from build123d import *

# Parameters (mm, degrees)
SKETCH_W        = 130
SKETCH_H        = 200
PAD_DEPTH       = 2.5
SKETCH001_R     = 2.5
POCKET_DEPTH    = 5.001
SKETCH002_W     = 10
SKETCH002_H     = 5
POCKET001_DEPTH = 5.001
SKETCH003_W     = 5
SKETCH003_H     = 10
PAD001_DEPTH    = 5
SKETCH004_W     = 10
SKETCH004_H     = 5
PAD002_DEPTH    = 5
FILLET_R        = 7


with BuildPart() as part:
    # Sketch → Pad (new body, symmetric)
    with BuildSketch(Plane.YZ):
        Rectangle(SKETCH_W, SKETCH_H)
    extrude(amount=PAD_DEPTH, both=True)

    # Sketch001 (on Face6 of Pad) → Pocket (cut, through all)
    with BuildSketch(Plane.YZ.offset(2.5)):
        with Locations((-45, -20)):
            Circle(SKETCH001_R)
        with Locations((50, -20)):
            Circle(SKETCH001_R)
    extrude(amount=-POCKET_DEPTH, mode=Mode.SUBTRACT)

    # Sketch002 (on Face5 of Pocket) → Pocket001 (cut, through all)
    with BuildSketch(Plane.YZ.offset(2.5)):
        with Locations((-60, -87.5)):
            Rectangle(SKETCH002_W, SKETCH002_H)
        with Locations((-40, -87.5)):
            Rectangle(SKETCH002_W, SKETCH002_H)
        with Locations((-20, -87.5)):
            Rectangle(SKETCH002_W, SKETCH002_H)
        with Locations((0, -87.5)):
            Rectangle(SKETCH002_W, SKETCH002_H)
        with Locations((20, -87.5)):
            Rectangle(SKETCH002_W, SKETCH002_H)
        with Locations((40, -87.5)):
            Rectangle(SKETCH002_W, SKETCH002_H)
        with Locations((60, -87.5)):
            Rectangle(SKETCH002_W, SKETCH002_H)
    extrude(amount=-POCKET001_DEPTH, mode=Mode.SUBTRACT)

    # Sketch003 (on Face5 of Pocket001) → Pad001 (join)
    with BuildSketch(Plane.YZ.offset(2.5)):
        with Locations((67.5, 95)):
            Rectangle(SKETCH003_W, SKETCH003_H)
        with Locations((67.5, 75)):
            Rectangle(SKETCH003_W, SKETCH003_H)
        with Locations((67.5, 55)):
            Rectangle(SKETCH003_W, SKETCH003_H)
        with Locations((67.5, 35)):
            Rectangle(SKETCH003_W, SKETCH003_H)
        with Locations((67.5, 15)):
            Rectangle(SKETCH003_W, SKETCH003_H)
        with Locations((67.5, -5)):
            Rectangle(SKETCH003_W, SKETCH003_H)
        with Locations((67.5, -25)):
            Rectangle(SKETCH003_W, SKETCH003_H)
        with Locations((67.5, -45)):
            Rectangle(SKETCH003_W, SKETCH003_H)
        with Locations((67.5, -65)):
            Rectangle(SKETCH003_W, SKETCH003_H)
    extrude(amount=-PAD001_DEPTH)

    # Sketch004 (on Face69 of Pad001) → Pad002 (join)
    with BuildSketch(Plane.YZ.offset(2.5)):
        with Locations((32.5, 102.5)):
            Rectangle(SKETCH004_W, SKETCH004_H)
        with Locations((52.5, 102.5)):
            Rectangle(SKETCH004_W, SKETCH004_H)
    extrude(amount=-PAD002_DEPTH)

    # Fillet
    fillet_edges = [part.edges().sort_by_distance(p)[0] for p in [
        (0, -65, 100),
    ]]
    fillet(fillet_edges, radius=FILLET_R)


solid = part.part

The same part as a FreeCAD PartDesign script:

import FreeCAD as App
import Part
import Sketcher


def edges_at(feature, points):
    """Names of the edges that pass closest to the given points."""
    edges = feature.Shape.Edges
    near = lambda p: min(range(len(edges)), key=lambda i: edges[i].distToShape(Part.Vertex(*p))[0])
    return sorted({f"Edge{near(p) + 1}" for p in points})

doc = App.newDocument("Part")
body = doc.addObject("PartDesign::Body", "Body")

sketch1 = body.newObject("Sketcher::SketchObject", "Sketch")
sketch1.AttachmentSupport = (doc.getObject("YZ_Plane"), [""])
sketch1.MapMode = "FlatFace"
sketch1.addGeometry(Part.LineSegment(App.Vector(-65, 100, 0), App.Vector(-65, -100, 0)), False)
sketch1.addGeometry(Part.LineSegment(App.Vector(-65, -100, 0), App.Vector(65, -100, 0)), False)
sketch1.addGeometry(Part.LineSegment(App.Vector(65, -100, 0), App.Vector(65, 100, 0)), False)
sketch1.addGeometry(Part.LineSegment(App.Vector(65, 100, 0), App.Vector(-65, 100, 0)), False)
sketch1.addConstraint(Sketcher.Constraint("Coincident", 0, 2, 1, 1))
sketch1.addConstraint(Sketcher.Constraint("Coincident", 1, 2, 2, 1))
sketch1.addConstraint(Sketcher.Constraint("Coincident", 2, 2, 3, 1))
sketch1.addConstraint(Sketcher.Constraint("Coincident", 3, 2, 0, 1))
sketch1.addConstraint(Sketcher.Constraint("Vertical", 0))
sketch1.addConstraint(Sketcher.Constraint("Horizontal", 1))
sketch1.addConstraint(Sketcher.Constraint("Vertical", 2))
sketch1.addConstraint(Sketcher.Constraint("Horizontal", 3))
sketch1.addConstraint(Sketcher.Constraint("Symmetric", 0, 2, 2, 2, -1, 1))
sketch1.addConstraint(Sketcher.Constraint("DistanceX", 1, 1, 1, 2, 130.0))
sketch1.addConstraint(Sketcher.Constraint("DistanceY", 0, 2, 0, 1, 200.0))
pad1 = body.newObject("PartDesign::Pad", "Pad")
pad1.Profile = sketch1
pad1.Length = 5
pad1.Midplane = True

sketch2 = body.newObject("Sketcher::SketchObject", "Sketch001")
sketch2.AttachmentSupport = (doc.getObject("YZ_Plane"), [""])
sketch2.MapMode = "FlatFace"
sketch2.AttachmentOffset = App.Placement(App.Vector(0, 0, 2.5), App.Rotation())
sketch2.addGeometry(Part.Circle(App.Vector(-45, -20, 0), App.Vector(0, 0, 1), 2.5), False)
sketch2.addGeometry(Part.Circle(App.Vector(50, -20, 0), App.Vector(0, 0, 1), 2.5), False)
sketch2.addConstraint(Sketcher.Constraint("Equal", 0, 1))
sketch2.addConstraint(Sketcher.Constraint("Horizontal", 0, 3, 1, 3))
sketch2.addConstraint(Sketcher.Constraint("Diameter", 0, 5.0))
sketch2.addConstraint(Sketcher.Constraint("DistanceX", 0, 3, -1, 1, 45.0))
sketch2.addConstraint(Sketcher.Constraint("DistanceY", 0, 3, -1, 1, 20.0))
sketch2.addConstraint(Sketcher.Constraint("DistanceX", -1, 1, 1, 3, 50.0))
pocket1 = body.newObject("PartDesign::Pocket", "Pocket")
pocket1.Profile = sketch2
pocket1.Type = "ThroughAll"

sketch3 = body.newObject("Sketcher::SketchObject", "Sketch002")
sketch3.AttachmentSupport = (doc.getObject("YZ_Plane"), [""])
sketch3.MapMode = "FlatFace"
sketch3.AttachmentOffset = App.Placement(App.Vector(0, 0, 2.5), App.Rotation())
sketch3.addGeometry(Part.LineSegment(App.Vector(-65, -85, 0), App.Vector(-65, -90, 0)), False)
sketch3.addGeometry(Part.LineSegment(App.Vector(-65, -90, 0), App.Vector(-55, -90, 0)), False)
sketch3.addGeometry(Part.LineSegment(App.Vector(-55, -90, 0), App.Vector(-55, -85, 0)), False)
sketch3.addGeometry(Part.LineSegment(App.Vector(-55, -85, 0), App.Vector(-65, -85, 0)), False)
sketch3.addGeometry(Part.LineSegment(App.Vector(-45, -85, 0), App.Vector(-45, -90, 0)), False)
sketch3.addGeometry(Part.LineSegment(App.Vector(-45, -90, 0), App.Vector(-35, -90, 0)), False)
sketch3.addGeometry(Part.LineSegment(App.Vector(-35, -90, 0), App.Vector(-35, -85, 0)), False)
sketch3.addGeometry(Part.LineSegment(App.Vector(-35, -85, 0), App.Vector(-45, -85, 0)), False)
sketch3.addGeometry(Part.LineSegment(App.Vector(-25, -85, 0), App.Vector(-25, -90, 0)), False)
sketch3.addGeometry(Part.LineSegment(App.Vector(-25, -90, 0), App.Vector(-15, -90, 0)), False)
sketch3.addGeometry(Part.LineSegment(App.Vector(-15, -90, 0), App.Vector(-15, -85, 0)), False)
sketch3.addGeometry(Part.LineSegment(App.Vector(-15, -85, 0), App.Vector(-25, -85, 0)), False)
sketch3.addGeometry(Part.LineSegment(App.Vector(-5, -85, 0), App.Vector(-5, -90, 0)), False)
sketch3.addGeometry(Part.LineSegment(App.Vector(-5, -90, 0), App.Vector(5, -90, 0)), False)
sketch3.addGeometry(Part.LineSegment(App.Vector(5, -90, 0), App.Vector(5, -85, 0)), False)
sketch3.addGeometry(Part.LineSegment(App.Vector(5, -85, 0), App.Vector(-5, -85, 0)), False)
sketch3.addGeometry(Part.LineSegment(App.Vector(15, -85, 0), App.Vector(15, -90, 0)), False)
sketch3.addGeometry(Part.LineSegment(App.Vector(15, -90, 0), App.Vector(25, -90, 0)), False)
sketch3.addGeometry(Part.LineSegment(App.Vector(25, -90, 0), App.Vector(25, -85, 0)), False)
sketch3.addGeometry(Part.LineSegment(App.Vector(25, -85, 0), App.Vector(15, -85, 0)), False)
sketch3.addGeometry(Part.LineSegment(App.Vector(35, -85, 0), App.Vector(35, -90, 0)), False)
sketch3.addGeometry(Part.LineSegment(App.Vector(35, -90, 0), App.Vector(45, -90, 0)), False)
sketch3.addGeometry(Part.LineSegment(App.Vector(45, -90, 0), App.Vector(45, -85, 0)), False)
sketch3.addGeometry(Part.LineSegment(App.Vector(45, -85, 0), App.Vector(35, -85, 0)), False)
sketch3.addGeometry(Part.LineSegment(App.Vector(55, -85, 0), App.Vector(55, -90, 0)), False)
sketch3.addGeometry(Part.LineSegment(App.Vector(55, -90, 0), App.Vector(65, -90, 0)), False)
sketch3.addGeometry(Part.LineSegment(App.Vector(65, -90, 0), App.Vector(65, -85, 0)), False)
sketch3.addGeometry(Part.LineSegment(App.Vector(65, -85, 0), App.Vector(55, -85, 0)), False)
sketch3.addConstraint(Sketcher.Constraint("Coincident", 0, 2, 1, 1))
sketch3.addConstraint(Sketcher.Constraint("Coincident", 1, 2, 2, 1))
sketch3.addConstraint(Sketcher.Constraint("Coincident", 2, 2, 3, 1))
sketch3.addConstraint(Sketcher.Constraint("Coincident", 3, 2, 0, 1))
sketch3.addConstraint(Sketcher.Constraint("Coincident", 4, 2, 5, 1))
sketch3.addConstraint(Sketcher.Constraint("Coincident", 5, 2, 6, 1))
sketch3.addConstraint(Sketcher.Constraint("Coincident", 6, 2, 7, 1))
sketch3.addConstraint(Sketcher.Constraint("Coincident", 7, 2, 4, 1))
sketch3.addConstraint(Sketcher.Constraint("Coincident", 8, 2, 9, 1))
sketch3.addConstraint(Sketcher.Constraint("Coincident", 9, 2, 10, 1))
sketch3.addConstraint(Sketcher.Constraint("Coincident", 10, 2, 11, 1))
sketch3.addConstraint(Sketcher.Constraint("Coincident", 11, 2, 8, 1))
sketch3.addConstraint(Sketcher.Constraint("Coincident", 12, 2, 13, 1))
sketch3.addConstraint(Sketcher.Constraint("Coincident", 13, 2, 14, 1))
sketch3.addConstraint(Sketcher.Constraint("Coincident", 14, 2, 15, 1))
sketch3.addConstraint(Sketcher.Constraint("Coincident", 15, 2, 12, 1))
sketch3.addConstraint(Sketcher.Constraint("Coincident", 16, 2, 17, 1))
sketch3.addConstraint(Sketcher.Constraint("Coincident", 17, 2, 18, 1))
sketch3.addConstraint(Sketcher.Constraint("Coincident", 18, 2, 19, 1))
sketch3.addConstraint(Sketcher.Constraint("Coincident", 19, 2, 16, 1))
sketch3.addConstraint(Sketcher.Constraint("Coincident", 20, 2, 21, 1))
sketch3.addConstraint(Sketcher.Constraint("Coincident", 21, 2, 22, 1))
sketch3.addConstraint(Sketcher.Constraint("Coincident", 22, 2, 23, 1))
sketch3.addConstraint(Sketcher.Constraint("Coincident", 23, 2, 20, 1))
sketch3.addConstraint(Sketcher.Constraint("Coincident", 24, 2, 25, 1))
sketch3.addConstraint(Sketcher.Constraint("Coincident", 25, 2, 26, 1))
sketch3.addConstraint(Sketcher.Constraint("Coincident", 26, 2, 27, 1))
sketch3.addConstraint(Sketcher.Constraint("Coincident", 27, 2, 24, 1))
sketch3.addConstraint(Sketcher.Constraint("Vertical", 0))
sketch3.addConstraint(Sketcher.Constraint("Horizontal", 1))
sketch3.addConstraint(Sketcher.Constraint("Vertical", 2))
sketch3.addConstraint(Sketcher.Constraint("Horizontal", 3))
sketch3.addConstraint(Sketcher.Constraint("Vertical", 4))
sketch3.addConstraint(Sketcher.Constraint("Horizontal", 5))
sketch3.addConstraint(Sketcher.Constraint("Vertical", 6))
sketch3.addConstraint(Sketcher.Constraint("Horizontal", 7))
sketch3.addConstraint(Sketcher.Constraint("Vertical", 8))
sketch3.addConstraint(Sketcher.Constraint("Horizontal", 9))
sketch3.addConstraint(Sketcher.Constraint("Vertical", 10))
sketch3.addConstraint(Sketcher.Constraint("Horizontal", 11))
sketch3.addConstraint(Sketcher.Constraint("Vertical", 12))
sketch3.addConstraint(Sketcher.Constraint("Horizontal", 13))
sketch3.addConstraint(Sketcher.Constraint("Vertical", 14))
sketch3.addConstraint(Sketcher.Constraint("Horizontal", 15))
sketch3.addConstraint(Sketcher.Constraint("Vertical", 16))
sketch3.addConstraint(Sketcher.Constraint("Horizontal", 17))
sketch3.addConstraint(Sketcher.Constraint("Vertical", 18))
sketch3.addConstraint(Sketcher.Constraint("Horizontal", 19))
sketch3.addConstraint(Sketcher.Constraint("Vertical", 20))
sketch3.addConstraint(Sketcher.Constraint("Horizontal", 21))
sketch3.addConstraint(Sketcher.Constraint("Vertical", 22))
sketch3.addConstraint(Sketcher.Constraint("Horizontal", 23))
sketch3.addConstraint(Sketcher.Constraint("Vertical", 24))
sketch3.addConstraint(Sketcher.Constraint("Horizontal", 25))
sketch3.addConstraint(Sketcher.Constraint("Vertical", 26))
sketch3.addConstraint(Sketcher.Constraint("Horizontal", 27))
sketch3.addConstraint(Sketcher.Constraint("Symmetric", 9, 2, 16, 2, -2))
sketch3.addConstraint(Sketcher.Constraint("Symmetric", 11, 2, 18, 2, -2))
sketch3.addConstraint(Sketcher.Constraint("Symmetric", 5, 2, 20, 2, -2))
sketch3.addConstraint(Sketcher.Constraint("Symmetric", 7, 2, 22, 2, -2))
sketch3.addConstraint(Sketcher.Constraint("Symmetric", 1, 2, 24, 2, -2))
sketch3.addConstraint(Sketcher.Constraint("Symmetric", 3, 2, 26, 2, -2))
sketch3.addConstraint(Sketcher.Constraint("Horizontal", 1, 2, 4, 2))
sketch3.addConstraint(Sketcher.Constraint("Horizontal", 3, 2, 6, 2))
sketch3.addConstraint(Sketcher.Constraint("Horizontal", 5, 2, 8, 2))
sketch3.addConstraint(Sketcher.Constraint("Horizontal", 7, 2, 10, 2))
sketch3.addConstraint(Sketcher.Constraint("Horizontal", 9, 2, 12, 2))
sketch3.addConstraint(Sketcher.Constraint("Horizontal", 11, 2, 14, 2))
sketch3.addConstraint(Sketcher.Constraint("Equal", 3, 5))
sketch3.addConstraint(Sketcher.Constraint("Equal", 7, 9))
sketch3.addConstraint(Sketcher.Constraint("Equal", 11, 13))
sketch3.addConstraint(Sketcher.Constraint("DistanceX", 1, 1, 1, 2, 10.0))
sketch3.addConstraint(Sketcher.Constraint("DistanceY", 0, 2, 0, 1, 5.0))
sketch3.addConstraint(Sketcher.Constraint("DistanceX", 0, 2, -1, 1, 65.0))
sketch3.addConstraint(Sketcher.Constraint("DistanceY", 0, 2, -1, 1, 90.0))
sketch3.addConstraint(Sketcher.Constraint("DistanceX", 4, 2, -1, 1, 45.0))
sketch3.addConstraint(Sketcher.Constraint("DistanceX", 8, 2, -1, 1, 25.0))
sketch3.addConstraint(Sketcher.Constraint("DistanceX", 12, 2, -1, 1, 5.0))
pocket2 = body.newObject("PartDesign::Pocket", "Pocket001")
pocket2.Profile = sketch3
pocket2.Type = "ThroughAll"

sketch4 = body.newObject("Sketcher::SketchObject", "Sketch003")
sketch4.AttachmentSupport = (doc.getObject("YZ_Plane"), [""])
sketch4.MapMode = "FlatFace"
sketch4.AttachmentOffset = App.Placement(App.Vector(0, 0, 2.5), App.Rotation())
sketch4.addGeometry(Part.LineSegment(App.Vector(65, 100, 0), App.Vector(65, 90, 0)), False)
sketch4.addGeometry(Part.LineSegment(App.Vector(65, 90, 0), App.Vector(70, 90, 0)), False)
sketch4.addGeometry(Part.LineSegment(App.Vector(70, 90, 0), App.Vector(70, 100, 0)), False)
sketch4.addGeometry(Part.LineSegment(App.Vector(70, 100, 0), App.Vector(65, 100, 0)), False)
sketch4.addGeometry(Part.LineSegment(App.Vector(65, 80, 0), App.Vector(65, 70, 0)), False)
sketch4.addGeometry(Part.LineSegment(App.Vector(65, 70, 0), App.Vector(70, 70, 0)), False)
sketch4.addGeometry(Part.LineSegment(App.Vector(70, 70, 0), App.Vector(70, 80, 0)), False)
sketch4.addGeometry(Part.LineSegment(App.Vector(70, 80, 0), App.Vector(65, 80, 0)), False)
sketch4.addGeometry(Part.LineSegment(App.Vector(65, 60, 0), App.Vector(65, 50, 0)), False)
sketch4.addGeometry(Part.LineSegment(App.Vector(65, 50, 0), App.Vector(70, 50, 0)), False)
sketch4.addGeometry(Part.LineSegment(App.Vector(70, 50, 0), App.Vector(70, 60, 0)), False)
sketch4.addGeometry(Part.LineSegment(App.Vector(70, 60, 0), App.Vector(65, 60, 0)), False)
sketch4.addGeometry(Part.LineSegment(App.Vector(65, 40, 0), App.Vector(65, 30, 0)), False)
sketch4.addGeometry(Part.LineSegment(App.Vector(65, 30, 0), App.Vector(70, 30, 0)), False)
sketch4.addGeometry(Part.LineSegment(App.Vector(70, 30, 0), App.Vector(70, 40, 0)), False)
sketch4.addGeometry(Part.LineSegment(App.Vector(70, 40, 0), App.Vector(65, 40, 0)), False)
sketch4.addGeometry(Part.LineSegment(App.Vector(65, 20, 0), App.Vector(65, 10, 0)), False)
sketch4.addGeometry(Part.LineSegment(App.Vector(65, 10, 0), App.Vector(70, 10, 0)), False)
sketch4.addGeometry(Part.LineSegment(App.Vector(70, 10, 0), App.Vector(70, 20, 0)), False)
sketch4.addGeometry(Part.LineSegment(App.Vector(70, 20, 0), App.Vector(65, 20, 0)), False)
sketch4.addGeometry(Part.LineSegment(App.Vector(65, 0, 0), App.Vector(65, -10, 0)), False)
sketch4.addGeometry(Part.LineSegment(App.Vector(65, -10, 0), App.Vector(70, -10, 0)), False)
sketch4.addGeometry(Part.LineSegment(App.Vector(70, -10, 0), App.Vector(70, 0, 0)), False)
sketch4.addGeometry(Part.LineSegment(App.Vector(70, 0, 0), App.Vector(65, 0, 0)), False)
sketch4.addGeometry(Part.LineSegment(App.Vector(65, -20, 0), App.Vector(65, -30, 0)), False)
sketch4.addGeometry(Part.LineSegment(App.Vector(65, -30, 0), App.Vector(70, -30, 0)), False)
sketch4.addGeometry(Part.LineSegment(App.Vector(70, -30, 0), App.Vector(70, -20, 0)), False)
sketch4.addGeometry(Part.LineSegment(App.Vector(70, -20, 0), App.Vector(65, -20, 0)), False)
sketch4.addGeometry(Part.LineSegment(App.Vector(65, -40, 0), App.Vector(65, -50, 0)), False)
sketch4.addGeometry(Part.LineSegment(App.Vector(65, -50, 0), App.Vector(70, -50, 0)), False)
sketch4.addGeometry(Part.LineSegment(App.Vector(70, -50, 0), App.Vector(70, -40, 0)), False)
sketch4.addGeometry(Part.LineSegment(App.Vector(70, -40, 0), App.Vector(65, -40, 0)), False)
sketch4.addGeometry(Part.LineSegment(App.Vector(65, -60, 0), App.Vector(65, -70, 0)), False)
sketch4.addGeometry(Part.LineSegment(App.Vector(65, -70, 0), App.Vector(70, -70, 0)), False)
sketch4.addGeometry(Part.LineSegment(App.Vector(70, -70, 0), App.Vector(70, -60, 0)), False)
sketch4.addGeometry(Part.LineSegment(App.Vector(70, -60, 0), App.Vector(65, -60, 0)), False)
sketch4.addConstraint(Sketcher.Constraint("Coincident", 0, 2, 1, 1))
sketch4.addConstraint(Sketcher.Constraint("Coincident", 1, 2, 2, 1))
sketch4.addConstraint(Sketcher.Constraint("Coincident", 2, 2, 3, 1))
sketch4.addConstraint(Sketcher.Constraint("Coincident", 3, 2, 0, 1))
sketch4.addConstraint(Sketcher.Constraint("Coincident", 4, 2, 5, 1))
sketch4.addConstraint(Sketcher.Constraint("Coincident", 5, 2, 6, 1))
sketch4.addConstraint(Sketcher.Constraint("Coincident", 6, 2, 7, 1))
sketch4.addConstraint(Sketcher.Constraint("Coincident", 7, 2, 4, 1))
sketch4.addConstraint(Sketcher.Constraint("Coincident", 8, 2, 9, 1))
sketch4.addConstraint(Sketcher.Constraint("Coincident", 9, 2, 10, 1))
sketch4.addConstraint(Sketcher.Constraint("Coincident", 10, 2, 11, 1))
sketch4.addConstraint(Sketcher.Constraint("Coincident", 11, 2, 8, 1))
sketch4.addConstraint(Sketcher.Constraint("Coincident", 12, 2, 13, 1))
sketch4.addConstraint(Sketcher.Constraint("Coincident", 13, 2, 14, 1))
sketch4.addConstraint(Sketcher.Constraint("Coincident", 14, 2, 15, 1))
sketch4.addConstraint(Sketcher.Constraint("Coincident", 15, 2, 12, 1))
sketch4.addConstraint(Sketcher.Constraint("Coincident", 16, 2, 17, 1))
sketch4.addConstraint(Sketcher.Constraint("Coincident", 17, 2, 18, 1))
sketch4.addConstraint(Sketcher.Constraint("Coincident", 18, 2, 19, 1))
sketch4.addConstraint(Sketcher.Constraint("Coincident", 19, 2, 16, 1))
sketch4.addConstraint(Sketcher.Constraint("Coincident", 20, 2, 21, 1))
sketch4.addConstraint(Sketcher.Constraint("Coincident", 21, 2, 22, 1))
sketch4.addConstraint(Sketcher.Constraint("Coincident", 22, 2, 23, 1))
sketch4.addConstraint(Sketcher.Constraint("Coincident", 23, 2, 20, 1))
sketch4.addConstraint(Sketcher.Constraint("Coincident", 24, 2, 25, 1))
sketch4.addConstraint(Sketcher.Constraint("Coincident", 25, 2, 26, 1))
sketch4.addConstraint(Sketcher.Constraint("Coincident", 26, 2, 27, 1))
sketch4.addConstraint(Sketcher.Constraint("Coincident", 27, 2, 24, 1))
sketch4.addConstraint(Sketcher.Constraint("Coincident", 28, 2, 29, 1))
sketch4.addConstraint(Sketcher.Constraint("Coincident", 29, 2, 30, 1))
sketch4.addConstraint(Sketcher.Constraint("Coincident", 30, 2, 31, 1))
sketch4.addConstraint(Sketcher.Constraint("Coincident", 31, 2, 28, 1))
sketch4.addConstraint(Sketcher.Constraint("Coincident", 32, 2, 33, 1))
sketch4.addConstraint(Sketcher.Constraint("Coincident", 33, 2, 34, 1))
sketch4.addConstraint(Sketcher.Constraint("Coincident", 34, 2, 35, 1))
sketch4.addConstraint(Sketcher.Constraint("Coincident", 35, 2, 32, 1))
sketch4.addConstraint(Sketcher.Constraint("Vertical", 0))
sketch4.addConstraint(Sketcher.Constraint("Horizontal", 1))
sketch4.addConstraint(Sketcher.Constraint("Vertical", 2))
sketch4.addConstraint(Sketcher.Constraint("Horizontal", 3))
sketch4.addConstraint(Sketcher.Constraint("Vertical", 4))
sketch4.addConstraint(Sketcher.Constraint("Horizontal", 5))
sketch4.addConstraint(Sketcher.Constraint("Vertical", 6))
sketch4.addConstraint(Sketcher.Constraint("Horizontal", 7))
sketch4.addConstraint(Sketcher.Constraint("Vertical", 8))
sketch4.addConstraint(Sketcher.Constraint("Horizontal", 9))
sketch4.addConstraint(Sketcher.Constraint("Vertical", 10))
sketch4.addConstraint(Sketcher.Constraint("Horizontal", 11))
sketch4.addConstraint(Sketcher.Constraint("Vertical", 12))
sketch4.addConstraint(Sketcher.Constraint("Horizontal", 13))
sketch4.addConstraint(Sketcher.Constraint("Vertical", 14))
sketch4.addConstraint(Sketcher.Constraint("Horizontal", 15))
sketch4.addConstraint(Sketcher.Constraint("Vertical", 16))
sketch4.addConstraint(Sketcher.Constraint("Horizontal", 17))
sketch4.addConstraint(Sketcher.Constraint("Vertical", 18))
sketch4.addConstraint(Sketcher.Constraint("Horizontal", 19))
sketch4.addConstraint(Sketcher.Constraint("Vertical", 20))
sketch4.addConstraint(Sketcher.Constraint("Horizontal", 21))
sketch4.addConstraint(Sketcher.Constraint("Vertical", 22))
sketch4.addConstraint(Sketcher.Constraint("Horizontal", 23))
sketch4.addConstraint(Sketcher.Constraint("Vertical", 24))
sketch4.addConstraint(Sketcher.Constraint("Horizontal", 25))
sketch4.addConstraint(Sketcher.Constraint("Vertical", 26))
sketch4.addConstraint(Sketcher.Constraint("Horizontal", 27))
sketch4.addConstraint(Sketcher.Constraint("Vertical", 28))
sketch4.addConstraint(Sketcher.Constraint("Horizontal", 29))
sketch4.addConstraint(Sketcher.Constraint("Vertical", 30))
sketch4.addConstraint(Sketcher.Constraint("Horizontal", 31))
sketch4.addConstraint(Sketcher.Constraint("Vertical", 32))
sketch4.addConstraint(Sketcher.Constraint("Horizontal", 33))
sketch4.addConstraint(Sketcher.Constraint("Vertical", 34))
sketch4.addConstraint(Sketcher.Constraint("Horizontal", 35))
sketch4.addConstraint(Sketcher.Constraint("Symmetric", 16, 2, 20, 2, -1))
sketch4.addConstraint(Sketcher.Constraint("Symmetric", 12, 2, 24, 2, -1))
sketch4.addConstraint(Sketcher.Constraint("Symmetric", 18, 2, 26, 2, -1))
sketch4.addConstraint(Sketcher.Constraint("Symmetric", 8, 2, 28, 2, -1))
sketch4.addConstraint(Sketcher.Constraint("Symmetric", 14, 2, 30, 2, -1))
sketch4.addConstraint(Sketcher.Constraint("Symmetric", 4, 2, 32, 2, -1))
sketch4.addConstraint(Sketcher.Constraint("Symmetric", 10, 2, 34, 2, -1))
sketch4.addConstraint(Sketcher.Constraint("PointOnObject", 22, 2, -1))
sketch4.addConstraint(Sketcher.Constraint("Vertical", 3, 2, 4, 2))
sketch4.addConstraint(Sketcher.Constraint("Vertical", 2, 2, 5, 2))
sketch4.addConstraint(Sketcher.Constraint("Vertical", 7, 2, 8, 2))
sketch4.addConstraint(Sketcher.Constraint("Vertical", 6, 2, 9, 2))
sketch4.addConstraint(Sketcher.Constraint("Vertical", 11, 2, 12, 2))
sketch4.addConstraint(Sketcher.Constraint("Vertical", 10, 2, 13, 2))
sketch4.addConstraint(Sketcher.Constraint("Vertical", 15, 2, 16, 2))
sketch4.addConstraint(Sketcher.Constraint("Vertical", 14, 2, 17, 2))
sketch4.addConstraint(Sketcher.Constraint("Vertical", 18, 2, 21, 2))
sketch4.addConstraint(Sketcher.Constraint("Equal", 2, 4))
sketch4.addConstraint(Sketcher.Constraint("Equal", 6, 8))
sketch4.addConstraint(Sketcher.Constraint("Equal", 10, 12))
sketch4.addConstraint(Sketcher.Constraint("Equal", 14, 16))
sketch4.addConstraint(Sketcher.Constraint("Equal", 18, 20))
sketch4.addConstraint(Sketcher.Constraint("Equal", 22, 24))
sketch4.addConstraint(Sketcher.Constraint("Equal", 26, 28))
sketch4.addConstraint(Sketcher.Constraint("Equal", 30, 32))
sketch4.addConstraint(Sketcher.Constraint("DistanceX", 1, 1, 1, 2, 5.0))
sketch4.addConstraint(Sketcher.Constraint("DistanceY", 0, 2, 0, 1, 10.0))
sketch4.addConstraint(Sketcher.Constraint("DistanceX", -1, 1, 0, 2, 65.0))
sketch4.addConstraint(Sketcher.Constraint("DistanceY", -1, 1, 0, 2, 90.0))
pad2 = body.newObject("PartDesign::Pad", "Pad001")
pad2.Profile = sketch4
pad2.Length = 5
pad2.Reversed = True

sketch5 = body.newObject("Sketcher::SketchObject", "Sketch004")
sketch5.AttachmentSupport = (doc.getObject("YZ_Plane"), [""])
sketch5.MapMode = "FlatFace"
sketch5.AttachmentOffset = App.Placement(App.Vector(0, 0, 2.5), App.Rotation())
sketch5.addGeometry(Part.LineSegment(App.Vector(28, 105, 0), App.Vector(28, 100, 0)), False)
sketch5.addGeometry(Part.LineSegment(App.Vector(28, 100, 0), App.Vector(38, 100, 0)), False)
sketch5.addGeometry(Part.LineSegment(App.Vector(38, 100, 0), App.Vector(38, 105, 0)), False)
sketch5.addGeometry(Part.LineSegment(App.Vector(38, 105, 0), App.Vector(28, 105, 0)), False)
sketch5.addGeometry(Part.LineSegment(App.Vector(48, 105, 0), App.Vector(48, 100, 0)), False)
sketch5.addGeometry(Part.LineSegment(App.Vector(48, 100, 0), App.Vector(58, 100, 0)), False)
sketch5.addGeometry(Part.LineSegment(App.Vector(58, 100, 0), App.Vector(58, 105, 0)), False)
sketch5.addGeometry(Part.LineSegment(App.Vector(58, 105, 0), App.Vector(48, 105, 0)), False)
sketch5.addConstraint(Sketcher.Constraint("Coincident", 0, 2, 1, 1))
sketch5.addConstraint(Sketcher.Constraint("Coincident", 1, 2, 2, 1))
sketch5.addConstraint(Sketcher.Constraint("Coincident", 2, 2, 3, 1))
sketch5.addConstraint(Sketcher.Constraint("Coincident", 3, 2, 0, 1))
sketch5.addConstraint(Sketcher.Constraint("Coincident", 4, 2, 5, 1))
sketch5.addConstraint(Sketcher.Constraint("Coincident", 5, 2, 6, 1))
sketch5.addConstraint(Sketcher.Constraint("Coincident", 6, 2, 7, 1))
sketch5.addConstraint(Sketcher.Constraint("Coincident", 7, 2, 4, 1))
sketch5.addConstraint(Sketcher.Constraint("Vertical", 0))
sketch5.addConstraint(Sketcher.Constraint("Horizontal", 1))
sketch5.addConstraint(Sketcher.Constraint("Vertical", 2))
sketch5.addConstraint(Sketcher.Constraint("Horizontal", 3))
sketch5.addConstraint(Sketcher.Constraint("Vertical", 4))
sketch5.addConstraint(Sketcher.Constraint("Horizontal", 5))
sketch5.addConstraint(Sketcher.Constraint("Vertical", 6))
sketch5.addConstraint(Sketcher.Constraint("Horizontal", 7))
sketch5.addConstraint(Sketcher.Constraint("Horizontal", 1, 2, 4, 2))
sketch5.addConstraint(Sketcher.Constraint("Horizontal", 3, 2, 6, 2))
sketch5.addConstraint(Sketcher.Constraint("Equal", 3, 5))
sketch5.addConstraint(Sketcher.Constraint("DistanceX", 1, 1, 1, 2, 10.0))
sketch5.addConstraint(Sketcher.Constraint("DistanceY", 0, 2, 0, 1, 5.0))
sketch5.addConstraint(Sketcher.Constraint("DistanceY", -1, 1, 0, 2, 100.0))
sketch5.addConstraint(Sketcher.Constraint("DistanceX", 1, 2, 4, 2, 10.0))
sketch5.addConstraint(Sketcher.Constraint("DistanceX", -1, 1, 0, 2, 27.5))
pad3 = body.newObject("PartDesign::Pad", "Pad002")
pad3.Profile = sketch5
pad3.Length = 5
pad3.Reversed = True
doc.recompute()

fillet = body.newObject("PartDesign::Fillet", "Fillet")
fillet.Base = (pad3, edges_at(pad3, [(0, -65, 100)]))
fillet.Radius = 7

doc.recompute()
